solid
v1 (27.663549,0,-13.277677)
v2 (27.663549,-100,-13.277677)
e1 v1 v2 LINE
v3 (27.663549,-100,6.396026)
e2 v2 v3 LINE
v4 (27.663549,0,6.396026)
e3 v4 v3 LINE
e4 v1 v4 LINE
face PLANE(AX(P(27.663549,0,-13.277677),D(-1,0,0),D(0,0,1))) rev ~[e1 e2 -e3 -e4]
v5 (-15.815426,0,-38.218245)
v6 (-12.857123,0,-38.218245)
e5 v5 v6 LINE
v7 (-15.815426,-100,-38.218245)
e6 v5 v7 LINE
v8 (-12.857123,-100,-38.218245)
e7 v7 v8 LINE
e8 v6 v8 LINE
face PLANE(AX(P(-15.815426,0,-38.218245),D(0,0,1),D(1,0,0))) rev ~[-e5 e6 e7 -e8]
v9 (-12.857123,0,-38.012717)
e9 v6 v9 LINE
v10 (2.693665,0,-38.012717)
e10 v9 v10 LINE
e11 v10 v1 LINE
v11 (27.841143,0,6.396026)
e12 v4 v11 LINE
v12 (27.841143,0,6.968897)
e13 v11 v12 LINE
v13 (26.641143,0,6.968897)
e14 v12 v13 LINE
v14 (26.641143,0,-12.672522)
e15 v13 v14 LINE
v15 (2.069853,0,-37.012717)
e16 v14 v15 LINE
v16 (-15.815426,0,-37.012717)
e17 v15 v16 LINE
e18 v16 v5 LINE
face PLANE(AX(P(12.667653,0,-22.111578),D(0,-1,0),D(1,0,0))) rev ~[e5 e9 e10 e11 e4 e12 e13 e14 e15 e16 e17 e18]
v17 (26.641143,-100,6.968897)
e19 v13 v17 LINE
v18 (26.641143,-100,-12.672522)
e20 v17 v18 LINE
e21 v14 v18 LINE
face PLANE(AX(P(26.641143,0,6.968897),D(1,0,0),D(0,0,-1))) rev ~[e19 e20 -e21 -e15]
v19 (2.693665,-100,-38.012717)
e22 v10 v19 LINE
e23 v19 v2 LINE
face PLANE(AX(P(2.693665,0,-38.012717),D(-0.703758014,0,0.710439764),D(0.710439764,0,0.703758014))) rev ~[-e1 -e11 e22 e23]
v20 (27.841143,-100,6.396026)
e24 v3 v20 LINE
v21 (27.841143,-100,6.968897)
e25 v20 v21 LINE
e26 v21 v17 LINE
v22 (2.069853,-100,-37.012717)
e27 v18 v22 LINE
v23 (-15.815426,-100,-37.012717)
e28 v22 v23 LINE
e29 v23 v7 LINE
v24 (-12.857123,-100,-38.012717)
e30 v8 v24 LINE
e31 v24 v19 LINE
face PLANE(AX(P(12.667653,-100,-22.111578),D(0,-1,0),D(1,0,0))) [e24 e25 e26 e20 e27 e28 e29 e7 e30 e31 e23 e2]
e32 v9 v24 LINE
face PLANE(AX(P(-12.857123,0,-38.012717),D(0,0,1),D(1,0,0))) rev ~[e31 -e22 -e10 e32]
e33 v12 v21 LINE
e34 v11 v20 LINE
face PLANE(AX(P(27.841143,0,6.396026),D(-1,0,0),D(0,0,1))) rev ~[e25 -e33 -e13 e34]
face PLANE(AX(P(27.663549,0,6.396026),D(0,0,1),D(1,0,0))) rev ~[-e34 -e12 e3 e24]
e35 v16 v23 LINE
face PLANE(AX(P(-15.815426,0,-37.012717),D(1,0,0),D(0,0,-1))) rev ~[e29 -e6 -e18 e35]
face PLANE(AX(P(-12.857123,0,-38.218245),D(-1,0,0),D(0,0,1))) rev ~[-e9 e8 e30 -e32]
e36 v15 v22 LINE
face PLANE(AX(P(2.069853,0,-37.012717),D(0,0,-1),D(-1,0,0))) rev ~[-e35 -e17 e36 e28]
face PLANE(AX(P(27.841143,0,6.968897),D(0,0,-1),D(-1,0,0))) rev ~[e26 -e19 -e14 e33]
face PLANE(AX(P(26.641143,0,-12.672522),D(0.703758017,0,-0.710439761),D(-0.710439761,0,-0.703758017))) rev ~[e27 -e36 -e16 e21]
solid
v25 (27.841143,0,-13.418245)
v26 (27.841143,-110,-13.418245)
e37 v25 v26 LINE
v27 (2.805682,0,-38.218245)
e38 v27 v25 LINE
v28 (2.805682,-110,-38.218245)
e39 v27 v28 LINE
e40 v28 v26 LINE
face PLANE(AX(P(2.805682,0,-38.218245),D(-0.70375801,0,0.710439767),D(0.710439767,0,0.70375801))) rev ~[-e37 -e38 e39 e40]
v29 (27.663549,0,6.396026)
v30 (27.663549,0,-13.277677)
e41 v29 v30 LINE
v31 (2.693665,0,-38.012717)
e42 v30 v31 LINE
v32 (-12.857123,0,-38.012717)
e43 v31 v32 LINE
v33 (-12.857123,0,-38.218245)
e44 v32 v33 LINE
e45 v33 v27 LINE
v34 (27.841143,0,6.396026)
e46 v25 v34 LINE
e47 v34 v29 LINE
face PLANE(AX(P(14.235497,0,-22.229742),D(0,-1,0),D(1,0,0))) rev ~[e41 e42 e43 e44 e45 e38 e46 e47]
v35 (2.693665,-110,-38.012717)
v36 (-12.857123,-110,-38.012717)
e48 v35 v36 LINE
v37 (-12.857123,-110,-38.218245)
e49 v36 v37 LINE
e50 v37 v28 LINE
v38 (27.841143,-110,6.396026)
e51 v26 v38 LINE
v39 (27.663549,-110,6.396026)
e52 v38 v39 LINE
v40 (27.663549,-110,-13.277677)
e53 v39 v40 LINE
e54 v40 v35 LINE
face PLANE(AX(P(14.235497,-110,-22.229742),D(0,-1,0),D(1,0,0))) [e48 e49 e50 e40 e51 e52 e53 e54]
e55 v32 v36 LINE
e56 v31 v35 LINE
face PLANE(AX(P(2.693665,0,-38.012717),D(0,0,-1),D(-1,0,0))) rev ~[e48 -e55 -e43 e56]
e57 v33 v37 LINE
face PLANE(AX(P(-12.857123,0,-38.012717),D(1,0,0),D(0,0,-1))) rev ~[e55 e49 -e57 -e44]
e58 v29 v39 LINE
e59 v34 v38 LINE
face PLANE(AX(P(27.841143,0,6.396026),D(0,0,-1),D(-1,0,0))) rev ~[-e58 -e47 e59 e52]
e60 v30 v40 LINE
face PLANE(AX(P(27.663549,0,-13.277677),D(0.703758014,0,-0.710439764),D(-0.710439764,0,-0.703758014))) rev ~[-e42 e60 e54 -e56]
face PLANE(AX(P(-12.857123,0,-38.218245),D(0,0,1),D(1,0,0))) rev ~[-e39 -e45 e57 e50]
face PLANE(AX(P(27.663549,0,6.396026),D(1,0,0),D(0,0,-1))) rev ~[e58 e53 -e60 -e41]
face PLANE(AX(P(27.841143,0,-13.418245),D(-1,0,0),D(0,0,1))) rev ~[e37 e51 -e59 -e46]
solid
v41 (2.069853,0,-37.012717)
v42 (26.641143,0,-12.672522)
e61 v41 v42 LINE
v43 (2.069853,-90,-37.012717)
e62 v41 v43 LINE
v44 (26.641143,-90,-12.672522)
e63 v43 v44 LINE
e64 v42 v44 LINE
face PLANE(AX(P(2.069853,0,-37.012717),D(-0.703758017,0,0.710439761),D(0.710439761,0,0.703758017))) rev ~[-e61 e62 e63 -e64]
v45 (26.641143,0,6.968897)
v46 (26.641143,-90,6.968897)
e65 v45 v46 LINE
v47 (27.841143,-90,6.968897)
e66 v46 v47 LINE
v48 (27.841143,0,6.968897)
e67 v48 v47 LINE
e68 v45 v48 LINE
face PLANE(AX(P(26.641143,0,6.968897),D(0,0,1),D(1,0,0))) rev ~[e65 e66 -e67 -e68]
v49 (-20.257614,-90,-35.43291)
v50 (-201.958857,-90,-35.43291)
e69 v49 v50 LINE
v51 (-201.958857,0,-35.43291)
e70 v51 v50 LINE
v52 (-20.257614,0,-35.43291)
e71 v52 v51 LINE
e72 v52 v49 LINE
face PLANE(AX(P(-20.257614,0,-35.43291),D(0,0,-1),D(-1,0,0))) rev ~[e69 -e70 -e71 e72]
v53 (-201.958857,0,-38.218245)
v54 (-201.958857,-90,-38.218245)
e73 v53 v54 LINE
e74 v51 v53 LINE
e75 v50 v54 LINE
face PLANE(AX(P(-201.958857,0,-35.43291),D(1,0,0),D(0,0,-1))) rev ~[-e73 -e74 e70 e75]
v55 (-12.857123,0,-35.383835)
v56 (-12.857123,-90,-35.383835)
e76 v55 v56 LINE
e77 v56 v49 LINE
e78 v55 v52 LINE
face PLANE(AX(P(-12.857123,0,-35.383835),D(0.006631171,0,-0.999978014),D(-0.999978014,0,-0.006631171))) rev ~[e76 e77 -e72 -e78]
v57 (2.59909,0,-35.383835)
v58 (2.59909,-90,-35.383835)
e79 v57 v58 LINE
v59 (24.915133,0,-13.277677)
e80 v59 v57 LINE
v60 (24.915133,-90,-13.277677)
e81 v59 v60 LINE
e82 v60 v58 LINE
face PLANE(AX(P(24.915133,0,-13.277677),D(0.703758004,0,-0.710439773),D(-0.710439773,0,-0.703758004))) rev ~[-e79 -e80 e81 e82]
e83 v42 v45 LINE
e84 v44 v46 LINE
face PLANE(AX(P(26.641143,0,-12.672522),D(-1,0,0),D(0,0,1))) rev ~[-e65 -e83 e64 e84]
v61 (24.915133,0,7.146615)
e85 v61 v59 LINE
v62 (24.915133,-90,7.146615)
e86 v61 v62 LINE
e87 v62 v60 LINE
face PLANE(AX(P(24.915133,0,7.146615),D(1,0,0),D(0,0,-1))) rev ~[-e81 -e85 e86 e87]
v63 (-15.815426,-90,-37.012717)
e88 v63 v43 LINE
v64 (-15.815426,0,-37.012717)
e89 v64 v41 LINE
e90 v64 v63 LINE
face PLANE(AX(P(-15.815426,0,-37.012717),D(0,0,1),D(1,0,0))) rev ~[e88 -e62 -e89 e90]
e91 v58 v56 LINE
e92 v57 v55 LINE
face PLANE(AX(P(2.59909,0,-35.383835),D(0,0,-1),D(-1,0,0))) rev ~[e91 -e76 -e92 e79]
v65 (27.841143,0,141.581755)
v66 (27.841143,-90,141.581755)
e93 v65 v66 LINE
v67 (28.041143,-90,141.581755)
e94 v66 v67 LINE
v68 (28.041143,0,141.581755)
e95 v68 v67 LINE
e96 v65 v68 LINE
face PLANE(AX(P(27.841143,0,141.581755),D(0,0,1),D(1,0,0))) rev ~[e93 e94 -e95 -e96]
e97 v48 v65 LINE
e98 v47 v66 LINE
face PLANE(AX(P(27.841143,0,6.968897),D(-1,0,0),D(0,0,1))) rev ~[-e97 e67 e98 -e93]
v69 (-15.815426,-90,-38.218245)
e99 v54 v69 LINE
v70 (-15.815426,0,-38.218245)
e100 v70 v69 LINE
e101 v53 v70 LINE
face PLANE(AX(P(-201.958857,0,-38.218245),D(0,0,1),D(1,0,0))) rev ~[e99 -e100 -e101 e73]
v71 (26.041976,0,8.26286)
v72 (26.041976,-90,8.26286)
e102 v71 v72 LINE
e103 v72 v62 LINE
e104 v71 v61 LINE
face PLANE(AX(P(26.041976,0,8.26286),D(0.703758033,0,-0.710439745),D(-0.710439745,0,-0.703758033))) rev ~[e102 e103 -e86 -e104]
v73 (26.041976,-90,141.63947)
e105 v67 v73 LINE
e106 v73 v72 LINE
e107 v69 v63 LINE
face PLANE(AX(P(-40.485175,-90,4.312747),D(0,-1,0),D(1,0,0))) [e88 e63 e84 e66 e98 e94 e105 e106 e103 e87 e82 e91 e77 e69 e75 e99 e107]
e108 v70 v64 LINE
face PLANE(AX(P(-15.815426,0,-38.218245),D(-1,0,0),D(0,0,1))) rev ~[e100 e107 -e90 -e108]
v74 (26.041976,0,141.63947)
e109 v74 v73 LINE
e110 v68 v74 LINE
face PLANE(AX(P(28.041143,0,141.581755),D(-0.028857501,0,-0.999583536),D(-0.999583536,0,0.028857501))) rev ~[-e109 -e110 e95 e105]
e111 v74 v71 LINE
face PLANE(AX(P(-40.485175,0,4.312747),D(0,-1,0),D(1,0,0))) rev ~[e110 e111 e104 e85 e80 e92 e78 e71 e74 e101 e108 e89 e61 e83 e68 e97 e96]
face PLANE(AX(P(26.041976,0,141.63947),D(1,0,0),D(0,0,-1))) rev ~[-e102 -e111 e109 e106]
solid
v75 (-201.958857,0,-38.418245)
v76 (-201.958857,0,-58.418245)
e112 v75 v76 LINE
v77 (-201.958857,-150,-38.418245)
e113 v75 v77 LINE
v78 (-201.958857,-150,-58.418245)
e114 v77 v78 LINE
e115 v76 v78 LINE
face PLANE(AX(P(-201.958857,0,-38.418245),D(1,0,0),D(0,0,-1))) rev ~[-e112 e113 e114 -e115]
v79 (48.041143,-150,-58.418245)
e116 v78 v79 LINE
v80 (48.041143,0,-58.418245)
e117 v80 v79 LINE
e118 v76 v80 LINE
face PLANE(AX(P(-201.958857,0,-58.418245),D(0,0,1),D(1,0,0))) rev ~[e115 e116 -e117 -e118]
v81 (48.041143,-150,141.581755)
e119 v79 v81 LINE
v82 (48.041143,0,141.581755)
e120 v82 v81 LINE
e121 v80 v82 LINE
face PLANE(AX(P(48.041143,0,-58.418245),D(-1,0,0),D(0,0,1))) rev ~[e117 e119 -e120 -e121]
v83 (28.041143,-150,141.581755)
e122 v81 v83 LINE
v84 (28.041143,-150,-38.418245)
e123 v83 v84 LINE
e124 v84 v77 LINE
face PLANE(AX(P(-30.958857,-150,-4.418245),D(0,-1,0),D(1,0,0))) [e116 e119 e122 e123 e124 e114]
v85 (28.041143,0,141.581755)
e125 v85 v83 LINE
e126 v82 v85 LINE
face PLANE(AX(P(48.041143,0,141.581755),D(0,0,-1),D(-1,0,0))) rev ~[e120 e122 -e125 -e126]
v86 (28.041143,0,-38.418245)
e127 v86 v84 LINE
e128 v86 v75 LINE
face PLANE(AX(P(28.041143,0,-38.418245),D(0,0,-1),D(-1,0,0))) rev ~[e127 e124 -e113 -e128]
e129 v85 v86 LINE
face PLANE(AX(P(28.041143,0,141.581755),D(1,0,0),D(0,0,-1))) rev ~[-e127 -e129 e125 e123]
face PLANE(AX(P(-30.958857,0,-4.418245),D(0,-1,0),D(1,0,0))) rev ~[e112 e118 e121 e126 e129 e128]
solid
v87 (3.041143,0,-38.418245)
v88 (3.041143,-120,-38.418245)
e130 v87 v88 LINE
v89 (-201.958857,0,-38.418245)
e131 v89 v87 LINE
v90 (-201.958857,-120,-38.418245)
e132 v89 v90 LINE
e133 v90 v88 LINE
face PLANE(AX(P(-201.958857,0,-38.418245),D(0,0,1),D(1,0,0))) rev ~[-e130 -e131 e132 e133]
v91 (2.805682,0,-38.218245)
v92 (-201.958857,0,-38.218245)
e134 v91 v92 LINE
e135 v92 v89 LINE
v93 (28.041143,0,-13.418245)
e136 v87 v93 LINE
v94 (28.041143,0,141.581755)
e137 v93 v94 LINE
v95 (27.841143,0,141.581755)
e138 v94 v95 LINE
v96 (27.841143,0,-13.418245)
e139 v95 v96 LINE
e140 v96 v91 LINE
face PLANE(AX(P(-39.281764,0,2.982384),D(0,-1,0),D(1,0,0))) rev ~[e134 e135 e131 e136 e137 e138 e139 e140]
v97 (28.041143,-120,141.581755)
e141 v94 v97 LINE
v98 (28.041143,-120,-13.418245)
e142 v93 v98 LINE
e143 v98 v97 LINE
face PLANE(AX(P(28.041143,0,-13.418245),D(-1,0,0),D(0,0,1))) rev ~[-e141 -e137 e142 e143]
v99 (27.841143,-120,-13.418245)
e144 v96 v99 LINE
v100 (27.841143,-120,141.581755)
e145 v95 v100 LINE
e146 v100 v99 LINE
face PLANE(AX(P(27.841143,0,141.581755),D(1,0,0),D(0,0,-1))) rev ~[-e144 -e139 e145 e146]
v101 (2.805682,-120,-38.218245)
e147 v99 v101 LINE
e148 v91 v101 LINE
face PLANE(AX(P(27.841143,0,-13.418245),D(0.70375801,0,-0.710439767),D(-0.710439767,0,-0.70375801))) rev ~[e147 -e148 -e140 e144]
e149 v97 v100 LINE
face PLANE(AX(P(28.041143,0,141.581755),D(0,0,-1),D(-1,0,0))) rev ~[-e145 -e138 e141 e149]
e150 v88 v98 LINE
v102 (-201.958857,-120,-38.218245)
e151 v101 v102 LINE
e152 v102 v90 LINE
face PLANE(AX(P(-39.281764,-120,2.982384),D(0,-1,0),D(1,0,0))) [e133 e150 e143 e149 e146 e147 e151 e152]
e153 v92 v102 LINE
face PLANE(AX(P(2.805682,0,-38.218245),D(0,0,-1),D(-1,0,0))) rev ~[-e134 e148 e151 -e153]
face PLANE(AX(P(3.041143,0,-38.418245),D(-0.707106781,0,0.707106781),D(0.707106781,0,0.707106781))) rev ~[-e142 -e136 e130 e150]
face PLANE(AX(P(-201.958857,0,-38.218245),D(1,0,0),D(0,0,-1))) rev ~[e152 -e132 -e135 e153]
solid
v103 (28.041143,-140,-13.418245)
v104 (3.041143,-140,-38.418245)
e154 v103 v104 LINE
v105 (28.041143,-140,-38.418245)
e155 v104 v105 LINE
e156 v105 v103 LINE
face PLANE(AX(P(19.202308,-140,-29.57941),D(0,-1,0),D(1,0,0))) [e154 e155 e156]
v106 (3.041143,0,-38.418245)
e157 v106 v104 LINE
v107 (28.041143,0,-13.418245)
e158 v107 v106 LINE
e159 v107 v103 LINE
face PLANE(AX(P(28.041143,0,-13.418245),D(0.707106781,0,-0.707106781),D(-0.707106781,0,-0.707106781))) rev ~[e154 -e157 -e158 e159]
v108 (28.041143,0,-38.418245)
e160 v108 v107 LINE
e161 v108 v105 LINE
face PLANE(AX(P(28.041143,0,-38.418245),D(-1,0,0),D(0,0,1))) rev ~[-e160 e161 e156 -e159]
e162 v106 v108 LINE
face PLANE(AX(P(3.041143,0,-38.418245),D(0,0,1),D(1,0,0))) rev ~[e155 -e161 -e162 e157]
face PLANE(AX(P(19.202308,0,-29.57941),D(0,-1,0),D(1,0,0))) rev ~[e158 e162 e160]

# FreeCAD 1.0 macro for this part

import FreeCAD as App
import Part
import Sketcher
from FreeCAD import Vector
Q = App.Units.Quantity


def add_polygon(sketch, points):
    """Adds a closed chain of lines whose ends are joined by coincident constraints."""
    first, n = sketch.GeometryCount, len(points)
    for a, b in zip(points, points[1:] + points[:1]):
        sketch.addGeometry(Part.LineSegment(App.Vector(*a, 0), App.Vector(*b, 0)), False)
    for i in range(n):
        sketch.addConstraint(Sketcher.Constraint("Coincident", first + i, 2, first + (i + 1) % n, 1))

doc = App.newDocument("Part")
body = doc.addObject("PartDesign::Body", "Body")

# Sketch on XZ plane
sketch1 = body.newObject("Sketcher::SketchObject", "Sketch")
sketch1.AttachmentSupport = (doc.getObject("XZ_Plane"), [""])
sketch1.MapMode = "FlatFace"
add_polygon(sketch1, [(-201.958857, -38.418245), (-201.958857, -58.418245), (48.041143, -58.418245), (48.041143, 141.581755), (28.041143, 141.581755), (28.041143, -38.418245)])  # lines 0-5
sketch1.addConstraint([
    Sketcher.Constraint("Vertical", 0),
    Sketcher.Constraint("Horizontal", 1),
    Sketcher.Constraint("Vertical", 2),
    Sketcher.Constraint("Horizontal", 3),
    Sketcher.Constraint("Vertical", 4),
    Sketcher.Constraint("Horizontal", 5),
    Sketcher.Constraint("Equal", 3, 0),
    Sketcher.Constraint("DistanceX", 1, 1, 1, 2, Q("250 mm")),
    Sketcher.Constraint("DistanceX", 3, 2, 3, 1, Q("20 mm")),
    Sketcher.Constraint("DistanceY", 2, 1, 2, 2, Q("200 mm")),
    Sketcher.Constraint("DistanceX", 0, 2, -1, 1, Q("201.958857 mm")),
    Sketcher.Constraint("DistanceY", 0, 2, -1, 1, Q("58.418245 mm")),
])
pad1 = body.newObject("PartDesign::Pad", "Pad")
pad1.Profile = sketch1
pad1.Length = 150
body2 = doc.addObject("PartDesign::Body", "Body001")

# Sketch on XZ plane
sketch2 = body2.newObject("Sketcher::SketchObject", "Sketch001")
sketch2.AttachmentSupport = (doc.getObject("XZ_Plane001"), [""])
sketch2.MapMode = "FlatFace"
add_polygon(sketch2, [(28.041143, -13.418245), (3.041143, -38.418245), (28.041143, -38.418245)])  # lines 0-2
sketch2.addConstraint([
    Sketcher.Constraint("Horizontal", 1),
    Sketcher.Constraint("Vertical", 2),
    Sketcher.Constraint("Equal", 1, 2),
    Sketcher.Constraint("DistanceX", 1, 1, 1, 2, Q("25 mm")),
    Sketcher.Constraint("DistanceX", -1, 1, 0, 2, Q("3.041143 mm")),
    Sketcher.Constraint("DistanceY", 0, 2, -1, 1, Q("38.418245 mm")),
])
pad2 = body2.newObject("PartDesign::Pad", "Pad001")
pad2.Profile = sketch2
pad2.Length = 140
body3 = doc.addObject("PartDesign::Body", "Body002")

# Sketch on XZ plane
sketch3 = body3.newObject("Sketcher::SketchObject", "Sketch002")
sketch3.AttachmentSupport = (doc.getObject("XZ_Plane002"), [""])
sketch3.MapMode = "FlatFace"
add_polygon(sketch3, [(-201.958857, -38.218245), (-201.958857, -38.418245), (3.041143, -38.418245), (28.041143, -13.418245), (28.041143, 141.581755), (27.841143, 141.581755), (27.841143, -13.418245), (2.805682, -38.218245)])  # lines 0-7
sketch3.addConstraint([
    Sketcher.Constraint("Vertical", 0),
    Sketcher.Constraint("Horizontal", 1),
    Sketcher.Constraint("Vertical", 3),
    Sketcher.Constraint("Horizontal", 4),
    Sketcher.Constraint("Vertical", 5),
    Sketcher.Constraint("Horizontal", 7),
    Sketcher.Constraint("Horizontal", 2, 2, 5, 2),
    Sketcher.Constraint("Equal", 4, 0),
    Sketcher.Constraint("DistanceX", 1, 1, 1, 2, Q("205 mm")),
    Sketcher.Constraint("DistanceY", 3, 1, 3, 2, Q("155 mm")),
    Sketcher.Constraint("Angle", 2, Q("45 deg")),
    Sketcher.Constraint("DistanceX", 4, 2, 4, 1, Q("0.2 mm")),
    Sketcher.Constraint("DistanceX", 1, 2, 2, 2, Q("25 mm")),
    Sketcher.Constraint("DistanceX", 7, 2, 7, 1, Q("204.764539 mm")),
    Sketcher.Constraint("DistanceX", -1, 1, 6, 2, Q("2.805682 mm")),
    Sketcher.Constraint("DistanceY", 0, 2, -1, 1, Q("38.418245 mm")),
])
pad3 = body3.newObject("PartDesign::Pad", "Pad002")
pad3.Profile = sketch3
pad3.Length = 120
body4 = doc.addObject("PartDesign::Body", "Body003")

# Sketch on XZ plane
sketch4 = body4.newObject("Sketcher::SketchObject", "Sketch003")
sketch4.AttachmentSupport = (doc.getObject("XZ_Plane003"), [""])
sketch4.MapMode = "FlatFace"
add_polygon(sketch4, [(-12.857123, -38.012717), (-12.857123, -38.218245), (2.805682, -38.218245), (27.841143, -13.418245), (27.841143, 6.396026), (27.663549, 6.396026), (27.663549, -13.277677), (2.693665, -38.012717)])  # lines 0-7
sketch4.addConstraint([
    Sketcher.Constraint("Vertical", 0),
    Sketcher.Constraint("Horizontal", 1),
    Sketcher.Constraint("Vertical", 3),
    Sketcher.Constraint("Horizontal", 4),
    Sketcher.Constraint("Vertical", 5),
    Sketcher.Constraint("Horizontal", 7),
    Sketcher.Constraint("Parallel", 2, 6),
    Sketcher.Constraint("DistanceY", 1, 2, 2, 2, Q("24.8 mm")),
    Sketcher.Constraint("DistanceX", 7, 2, 7, 1, Q("15.550788 mm")),
    Sketcher.Constraint("DistanceY", 0, 2, 0, 1, Q("0.205528 mm")),
    Sketcher.Constraint("DistanceY", 3, 1, 3, 2, Q("19.814271 mm")),
    Sketcher.Constraint("Distance", 6, Q("35.147081 mm")),
    Sketcher.Constraint("DistanceX", 1, 1, 1, 2, Q("15.662805 mm")),
    Sketcher.Constraint("DistanceX", 4, 2, 4, 1, Q("0.177594 mm")),
    Sketcher.Constraint("DistanceX", -1, 1, 1, 2, Q("2.805682 mm")),
    Sketcher.Constraint("DistanceY", 0, 2, -1, 1, Q("38.218245 mm")),
])
pad4 = body4.newObject("PartDesign::Pad", "Pad003")
pad4.Profile = sketch4
pad4.Length = 110
body5 = doc.addObject("PartDesign::Body", "Body004")

# Sketch on XZ plane
sketch5 = body5.newObject("Sketcher::SketchObject", "Sketch004")
sketch5.AttachmentSupport = (doc.getObject("XZ_Plane004"), [""])
sketch5.MapMode = "FlatFace"
add_polygon(sketch5, [(-15.815426, -37.012717), (-15.815426, -38.218245), (-12.857123, -38.218245), (-12.857123, -38.012717), (2.693665, -38.012717), (27.663549, -13.277677), (27.663549, 6.396026), (27.841143, 6.396026), (27.841143, 6.968897), (26.641143, 6.968897), (26.641143, -12.672522), (2.069853, -37.012717)])  # lines 0-11
sketch5.addConstraint([
    Sketcher.Constraint("Vertical", 0),
    Sketcher.Constraint("Horizontal", 1),
    Sketcher.Constraint("Vertical", 2),
    Sketcher.Constraint("Horizontal", 3),
    Sketcher.Constraint("Vertical", 5),
    Sketcher.Constraint("Horizontal", 6),
    Sketcher.Constraint("Vertical", 7),
    Sketcher.Constraint("Horizontal", 8),
    Sketcher.Constraint("Vertical", 9),
    Sketcher.Constraint("Horizontal", 11),
    Sketcher.Constraint("DistanceX", 8, 2, 8, 1, Q("1.2 mm")),
    Sketcher.Constraint("DistanceY", 3, 2, 10, 2, Q("1 mm")),
    Sketcher.Constraint("DistanceX", 3, 1, 3, 2, Q("15.550788 mm")),
    Sketcher.Constraint("DistanceX", 11, 2, 11, 1, Q("17.885279 mm")),
    Sketcher.Constraint("DistanceY", 0, 2, 0, 1, Q("1.205528 mm")),
    Sketcher.Constraint("DistanceY", 7, 1, 7, 2, Q("0.572871 mm")),
    Sketcher.Constraint("DistanceY", 9, 2, 9, 1, Q("19.641419 mm")),
    Sketcher.Constraint("Distance", 4, Q("35.147081 mm")),
    Sketcher.Constraint("Distance", 10, Q("34.586029 mm")),
    Sketcher.Constraint("DistanceX", 1, 1, 1, 2, Q("2.958303 mm")),
    Sketcher.Constraint("DistanceX", 6, 1, 6, 2, Q("0.177594 mm")),
    Sketcher.Constraint("DistanceX", -1, 1, 4, 2, Q("27.663549 mm")),
    Sketcher.Constraint("DistanceY", 3, 2, 4, 2, Q("24.73504 mm")),
    Sketcher.Constraint("DistanceY", 0, 2, -1, 1, Q("38.218245 mm")),
])
pad5 = body5.newObject("PartDesign::Pad", "Pad004")
pad5.Profile = sketch5
pad5.Length = 100
body6 = doc.addObject("PartDesign::Body", "Body005")

# Sketch on XZ plane
sketch6 = body6.newObject("Sketcher::SketchObject", "Sketch005")
sketch6.AttachmentSupport = (doc.getObject("XZ_Plane005"), [""])
sketch6.MapMode = "FlatFace"
add_polygon(sketch6, [(-201.958857, -35.43291), (-201.958857, -38.218245), (-15.815426, -38.218245), (-15.815426, -37.012717), (2.069853, -37.012717), (26.641143, -12.672522), (26.641143, 6.968897), (27.841143, 6.968897), (27.841143, 141.581755), (28.041143, 141.581755), (26.041976, 141.63947), (26.041976, 8.26286), (24.915133, 7.146615), (24.915133, -13.277677), (2.59909, -35.383835), (-12.857123, -35.383835), (-20.257614, -35.43291)])  # lines 0-16
sketch6.addConstraint([
    Sketcher.Constraint("Vertical", 0),
    Sketcher.Constraint("Horizontal", 1),
    Sketcher.Constraint("Vertical", 2),
    Sketcher.Constraint("Horizontal", 3),
    Sketcher.Constraint("Vertical", 5),
    Sketcher.Constraint("Horizontal", 6),
    Sketcher.Constraint("Vertical", 7),
    Sketcher.Constraint("Horizontal", 8),
    Sketcher.Constraint("Vertical", 10),
    Sketcher.Constraint("Vertical", 12),
    Sketcher.Constraint("Horizontal", 14),
    Sketcher.Constraint("Horizontal", 16),
    Sketcher.Constraint("Parallel", 4, 11),
    Sketcher.Constraint("Parallel", 11, 13),
    Sketcher.Constraint("Distance", 9, Q("2 mm")),
    Sketcher.Constraint("DistanceX", 6, 1, 6, 2, Q("1.2 mm")),
    Sketcher.Constraint("DistanceX", 8, 1, 8, 2, Q("0.2 mm")),
    Sketcher.Constraint("DistanceX", 0, 2, 4, 2, Q("228.6 mm")),
    Sketcher.Constraint("DistanceX", 1, 1, 1, 2, Q("186.143431 mm")),
    Sketcher.Constraint("DistanceX", 3, 1, 3, 2, Q("17.885279 mm")),
    Sketcher.Constraint("DistanceY", 2, 1, 2, 2, Q("1.205528 mm")),
    Sketcher.Constraint("DistanceY", 5, 1, 5, 2, Q("19.641419 mm")),
    Sketcher.Constraint("DistanceY", 10, 2, 10, 1, Q("133.37661 mm")),
    Sketcher.Constraint("Distance", 4, Q("34.586029 mm")),
    Sketcher.Constraint("Distance", 11, Q("1.58612 mm")),
    Sketcher.Constraint("Distance", 13, Q("31.41159 mm")),
    Sketcher.Constraint("DistanceX", 14, 2, 14, 1, Q("15.456213 mm")),
    Sketcher.Constraint("DistanceX", 16, 2, 16, 1, Q("181.701243 mm")),
    Sketcher.Constraint("DistanceY", 0, 2, 0, 1, Q("2.785335 mm")),
    Sketcher.Constraint("DistanceY", 7, 1, 7, 2, Q("134.612858 mm")),
    Sketcher.Constraint("DistanceY", 12, 2, 12, 1, Q("20.424292 mm")),
    Sketcher.Constraint("DistanceY", -1, 1, 9, 2, Q("141.63947 mm")),
    Sketcher.Constraint("DistanceX", -1, 1, 13, 2, Q("2.59909 mm")),
    Sketcher.Constraint("DistanceY", 15, 2, -1, 1, Q("35.43291 mm")),
])
pad6 = body6.newObject("PartDesign::Pad", "Pad005")
pad6.Profile = sketch6
pad6.Length = 90

doc.recompute()
